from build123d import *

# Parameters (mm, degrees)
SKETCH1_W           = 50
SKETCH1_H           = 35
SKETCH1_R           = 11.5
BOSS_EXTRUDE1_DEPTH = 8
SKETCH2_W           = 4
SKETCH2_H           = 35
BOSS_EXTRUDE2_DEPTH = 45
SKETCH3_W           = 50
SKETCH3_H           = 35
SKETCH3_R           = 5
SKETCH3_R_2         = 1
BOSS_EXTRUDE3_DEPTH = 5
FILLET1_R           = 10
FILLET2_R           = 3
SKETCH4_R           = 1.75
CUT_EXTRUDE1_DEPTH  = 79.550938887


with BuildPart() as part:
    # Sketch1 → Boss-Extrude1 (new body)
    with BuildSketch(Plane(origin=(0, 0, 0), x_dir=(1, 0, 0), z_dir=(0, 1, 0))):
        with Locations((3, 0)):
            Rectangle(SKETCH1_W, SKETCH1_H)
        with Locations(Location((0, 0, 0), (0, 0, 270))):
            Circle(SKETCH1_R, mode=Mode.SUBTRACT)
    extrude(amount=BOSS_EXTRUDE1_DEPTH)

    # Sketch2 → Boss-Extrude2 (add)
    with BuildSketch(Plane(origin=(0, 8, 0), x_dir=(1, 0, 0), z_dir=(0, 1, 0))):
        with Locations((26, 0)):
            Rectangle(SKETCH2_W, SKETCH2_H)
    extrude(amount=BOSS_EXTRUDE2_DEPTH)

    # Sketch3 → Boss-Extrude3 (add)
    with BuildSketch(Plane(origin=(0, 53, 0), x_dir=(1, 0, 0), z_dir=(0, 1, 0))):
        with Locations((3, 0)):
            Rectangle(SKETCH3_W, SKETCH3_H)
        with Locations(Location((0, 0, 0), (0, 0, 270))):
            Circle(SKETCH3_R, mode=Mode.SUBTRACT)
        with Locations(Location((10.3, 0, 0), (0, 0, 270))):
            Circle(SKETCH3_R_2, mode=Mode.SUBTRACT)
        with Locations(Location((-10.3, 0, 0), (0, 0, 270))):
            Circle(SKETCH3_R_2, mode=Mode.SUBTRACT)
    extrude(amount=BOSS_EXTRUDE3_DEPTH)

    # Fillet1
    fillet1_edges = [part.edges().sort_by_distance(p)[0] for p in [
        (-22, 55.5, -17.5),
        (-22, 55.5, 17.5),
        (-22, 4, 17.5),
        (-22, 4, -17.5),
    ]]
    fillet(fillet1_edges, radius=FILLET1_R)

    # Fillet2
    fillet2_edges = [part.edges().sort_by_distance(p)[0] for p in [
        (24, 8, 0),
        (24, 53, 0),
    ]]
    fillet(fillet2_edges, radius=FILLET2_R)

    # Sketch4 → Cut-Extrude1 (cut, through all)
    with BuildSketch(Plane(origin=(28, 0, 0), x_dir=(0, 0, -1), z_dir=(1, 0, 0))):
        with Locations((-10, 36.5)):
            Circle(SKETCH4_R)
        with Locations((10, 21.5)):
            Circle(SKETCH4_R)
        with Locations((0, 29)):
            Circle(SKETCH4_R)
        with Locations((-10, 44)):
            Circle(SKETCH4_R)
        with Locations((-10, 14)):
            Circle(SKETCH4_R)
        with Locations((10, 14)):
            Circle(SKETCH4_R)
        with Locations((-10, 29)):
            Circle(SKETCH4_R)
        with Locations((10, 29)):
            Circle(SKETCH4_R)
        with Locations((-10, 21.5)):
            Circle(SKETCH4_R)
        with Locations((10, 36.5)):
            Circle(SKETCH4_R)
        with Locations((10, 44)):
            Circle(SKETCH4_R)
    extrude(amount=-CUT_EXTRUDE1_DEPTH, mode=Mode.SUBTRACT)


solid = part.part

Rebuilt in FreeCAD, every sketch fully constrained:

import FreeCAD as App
import Part
import Sketcher

V = App.Vector
Q = App.Units.Quantity


def edges_at(feature, points):
    """Names of the edges that pass closest to the given points."""
    edges = feature.Shape.Edges
    near = lambda p: min(range(len(edges)), key=lambda i: edges[i].distToShape(Part.Vertex(*p))[0])
    return sorted({f"Edge{near(p) + 1}" for p in points})

doc = App.newDocument("Part")
body = doc.addObject("PartDesign::Body", "Body")

# Sketch on XZ plane
sketch1 = body.newObject("Sketcher::SketchObject", "Sketch")
sketch1.AttachmentSupport = (doc.getObject("XZ_Plane"), [""])
sketch1.MapMode = "FlatFace"
sketch1.addGeometry([
    Part.LineSegment(V(-22, -18, 0), V(-22, 18, 0)),  # 0
    Part.LineSegment(V(-22, 18, 0), V(28, 18, 0)),  # 1
    Part.LineSegment(V(28, 18, 0), V(28, -18, 0)),  # 2
    Part.LineSegment(V(28, -18, 0), V(-22, -18, 0)),  # 3
    Part.Circle(V(0, 0, 0), V(0, 0, 1), 12),  # 4
], False)
sketch1.addConstraint([
    Sketcher.Constraint("Coincident", 0, 2, 1, 1),
    Sketcher.Constraint("Coincident", 1, 2, 2, 1),
    Sketcher.Constraint("Coincident", 2, 2, 3, 1),
    Sketcher.Constraint("Coincident", 3, 2, 0, 1),
    Sketcher.Constraint("Vertical", 0),
    Sketcher.Constraint("Horizontal", 1),
    Sketcher.Constraint("Vertical", 2),
    Sketcher.Constraint("Horizontal", 3),
    Sketcher.Constraint("Coincident", 4, 3, -1, 1),
    Sketcher.Constraint("Diameter", 4, Q("23 mm")),
    Sketcher.Constraint("DistanceX", 1, 1, 1, 2, Q("50 mm")),
    Sketcher.Constraint("DistanceY", 0, 1, 0, 2, Q("35 mm")),
    Sketcher.Constraint("DistanceX", 0, 2, -1, 1, Q("22 mm")),
    Sketcher.Constraint("DistanceY", -1, 1, 0, 2, Q("17.5 mm")),
])
pad1 = body.newObject("PartDesign::Pad", "Pad")
pad1.Profile = sketch1
pad1.Length = 8
pad1.Reversed = True

# Sketch on XZ plane
sketch2 = body.newObject("Sketcher::SketchObject", "Sketch001")
sketch2.AttachmentSupport = (doc.getObject("XZ_Plane"), [""])
sketch2.MapMode = "FlatFace"
sketch2.AttachmentOffset = App.Placement(V(0, 0, -8), App.Rotation())
sketch2.addGeometry([
    Part.LineSegment(V(24, -17.5, 0), V(24, 17.5, 0)),
    Part.LineSegment(V(24, 17.5, 0), V(28, 17.5, 0)),
    Part.LineSegment(V(28, 17.5, 0), V(28, -17.5, 0)),
    Part.LineSegment(V(28, -17.5, 0), V(24, -17.5, 0)),
], False)
sketch2.addConstraint([
    Sketcher.Constraint("Coincident", 0, 2, 1, 1),
    Sketcher.Constraint("Coincident", 1, 2, 2, 1),
    Sketcher.Constraint("Coincident", 2, 2, 3, 1),
    Sketcher.Constraint("Coincident", 3, 2, 0, 1),
    Sketcher.Constraint("Vertical", 0),
    Sketcher.Constraint("Horizontal", 1),
    Sketcher.Constraint("Vertical", 2),
    Sketcher.Constraint("Horizontal", 3),
    Sketcher.Constraint("DistanceX", 1, 1, 1, 2, Q("4 mm")),
    Sketcher.Constraint("DistanceY", 0, 1, 0, 2, Q("35 mm")),
    Sketcher.Constraint("DistanceX", -1, 1, 0, 2, Q("24 mm")),
    Sketcher.Constraint("DistanceY", -1, 1, 0, 2, Q("17.5 mm")),
])
pad2 = body.newObject("PartDesign::Pad", "Pad001")
pad2.Profile = sketch2
pad2.Length = 45
pad2.Reversed = True

# Sketch on XZ plane
sketch3 = body.newObject("Sketcher::SketchObject", "Sketch002")
sketch3.AttachmentSupport = (doc.getObject("XZ_Plane"), [""])
sketch3.MapMode = "FlatFace"
sketch3.AttachmentOffset = App.Placement(V(0, 0, -53), App.Rotation())
sketch3.addGeometry([
    Part.LineSegment(V(-22, -17.5, 0), V(-22, 17.5, 0)),  # 0
    Part.LineSegment(V(-22, 17.5, 0), V(28, 17.5, 0)),  # 1
    Part.LineSegment(V(28, 17.5, 0), V(28, -17.5, 0)),  # 2
    Part.LineSegment(V(28, -17.5, 0), V(-22, -17.5, 0)),  # 3
    Part.Circle(V(-10.3, 0, 0), V(0, 0, 1), 1),  # 4
    Part.Circle(V(0, 0, 0), V(0, 0, 1), 5),  # 5
    Part.Circle(V(10.3, 0, 0), V(0, 0, 1), 1),  # 6
], False)
sketch3.addConstraint([
    Sketcher.Constraint("Coincident", 0, 2, 1, 1),
    Sketcher.Constraint("Coincident", 1, 2, 2, 1),
    Sketcher.Constraint("Coincident", 2, 2, 3, 1),
    Sketcher.Constraint("Coincident", 3, 2, 0, 1),
    Sketcher.Constraint("Vertical", 0),
    Sketcher.Constraint("Horizontal", 1),
    Sketcher.Constraint("Vertical", 2),
    Sketcher.Constraint("Horizontal", 3),
    Sketcher.Constraint("Coincident", 5, 3, -1, 1),
    Sketcher.Constraint("Equal", 4, 6),
    Sketcher.Constraint("Symmetric", 4, 3, 6, 3, -1, 1),
    Sketcher.Constraint("PointOnObject", 4, 3, -1),
    Sketcher.Constraint("Diameter", 4, Q("2 mm")),
    Sketcher.Constraint("Diameter", 5, Q("10 mm")),
    Sketcher.Constraint("DistanceX", 1, 1, 1, 2, Q("50 mm")),
    Sketcher.Constraint("DistanceY", 0, 1, 0, 2, Q("35 mm")),
    Sketcher.Constraint("DistanceX", 0, 2, -1, 1, Q("22 mm")),
    Sketcher.Constraint("DistanceX", 4, 3, -1, 1, Q("10.3 mm")),
    Sketcher.Constraint("DistanceY", -1, 1, 0, 2, Q("17.5 mm")),
])
pad3 = body.newObject("PartDesign::Pad", "Pad002")
pad3.Profile = sketch3
pad3.Length = 5
pad3.Reversed = True
doc.recompute()

fillet = body.newObject("PartDesign::Fillet", "Fillet")
fillet.Base = (pad3, edges_at(pad3, [
    (-22, 55.5, -17.5),
    (-22, 55.5, 17.5),
    (-22, 4, 17.5),
    (-22, 4, -17.5),
]))
fillet.Radius = 10
doc.recompute()

fillet2 = body.newObject("PartDesign::Fillet", "Fillet001")
fillet2.Base = (fillet, edges_at(fillet, [(24, 8, 0), (24, 53, 0)]))
fillet2.Radius = 3

# Sketch on YZ plane
sketch4 = body.newObject("Sketcher::SketchObject", "Sketch003")
sketch4.AttachmentSupport = (doc.getObject("YZ_Plane"), [""])
sketch4.MapMode = "FlatFace"
sketch4.AttachmentOffset = App.Placement(V(0, 0, 28), App.Rotation())
sketch4.addGeometry([
    Part.Circle(V(36.5, 10, 0), V(0, 0, 1), 1.8),  # 0
    Part.Circle(V(21.5, -10, 0), V(0, 0, 1), 1.8),  # 1
    Part.Circle(V(29, 0, 0), V(0, 0, 1), 1.8),  # 2
    Part.Circle(V(44, 10, 0), V(0, 0, 1), 1.8),  # 3
    Part.Circle(V(14, 10, 0), V(0, 0, 1), 1.8),  # 4
    Part.Circle(V(14, -10, 0), V(0, 0, 1), 1.8),  # 5
    Part.Circle(V(29, 10, 0), V(0, 0, 1), 1.8),  # 6
    Part.Circle(V(29, -10, 0), V(0, 0, 1), 1.8),  # 7
    Part.Circle(V(21.5, 10, 0), V(0, 0, 1), 1.8),  # 8
    Part.Circle(V(36.5, -10, 0), V(0, 0, 1), 1.8),  # 9
    Part.Circle(V(44, -10, 0), V(0, 0, 1), 1.8),  # 10
], False)
sketch4.addConstraint([
    Sketcher.Constraint("Equal", 0, 1),
    Sketcher.Constraint("Equal", 1, 2),
    Sketcher.Constraint("Equal", 2, 3),
    Sketcher.Constraint("Equal", 3, 4),
    Sketcher.Constraint("Equal", 4, 5),
    Sketcher.Constraint("Equal", 5, 6),
    Sketcher.Constraint("Equal", 6, 7),
    Sketcher.Constraint("Equal", 7, 8),
    Sketcher.Constraint("Equal", 8, 9),
    Sketcher.Constraint("Equal", 9, 10),
    Sketcher.Constraint("Symmetric", 4, 3, 5, 3, -1),
    Sketcher.Constraint("Symmetric", 6, 3, 7, 3, -1),
    Sketcher.Constraint("Symmetric", 1, 3, 8, 3, -1),
    Sketcher.Constraint("Symmetric", 0, 3, 9, 3, -1),
    Sketcher.Constraint("Symmetric", 3, 3, 10, 3, -1),
    Sketcher.Constraint("PointOnObject", 2, 3, -1),
    Sketcher.Constraint("Horizontal", 0, 3, 3, 3),
    Sketcher.Constraint("Horizontal", 3, 3, 4, 3),
    Sketcher.Constraint("Horizontal", 1, 3, 5, 3),
    Sketcher.Constraint("Horizontal", 4, 3, 6, 3),
    Sketcher.Constraint("Vertical", 2, 3, 6, 3),
    Sketcher.Constraint("Diameter", 0, Q("3.5 mm")),
    Sketcher.Constraint("DistanceY", -1, 1, 0, 3, Q("10 mm")),
    Sketcher.Constraint("DistanceX", -1, 1, 2, 3, Q("29 mm")),
    Sketcher.Constraint("DistanceX", -1, 1, 3, 3, Q("44 mm")),
    Sketcher.Constraint("DistanceX", -1, 1, 4, 3, Q("14 mm")),
    Sketcher.Constraint("DistanceX", 1, 3, 0, 3, Q("15 mm")),
    Sketcher.Constraint("DistanceX", -1, 1, 0, 3, Q("36.5 mm")),
])
pocket1 = body.newObject("PartDesign::Pocket", "Pocket")
pocket1.Profile = sketch4
pocket1.Type = "ThroughAll"

doc.recompute()
